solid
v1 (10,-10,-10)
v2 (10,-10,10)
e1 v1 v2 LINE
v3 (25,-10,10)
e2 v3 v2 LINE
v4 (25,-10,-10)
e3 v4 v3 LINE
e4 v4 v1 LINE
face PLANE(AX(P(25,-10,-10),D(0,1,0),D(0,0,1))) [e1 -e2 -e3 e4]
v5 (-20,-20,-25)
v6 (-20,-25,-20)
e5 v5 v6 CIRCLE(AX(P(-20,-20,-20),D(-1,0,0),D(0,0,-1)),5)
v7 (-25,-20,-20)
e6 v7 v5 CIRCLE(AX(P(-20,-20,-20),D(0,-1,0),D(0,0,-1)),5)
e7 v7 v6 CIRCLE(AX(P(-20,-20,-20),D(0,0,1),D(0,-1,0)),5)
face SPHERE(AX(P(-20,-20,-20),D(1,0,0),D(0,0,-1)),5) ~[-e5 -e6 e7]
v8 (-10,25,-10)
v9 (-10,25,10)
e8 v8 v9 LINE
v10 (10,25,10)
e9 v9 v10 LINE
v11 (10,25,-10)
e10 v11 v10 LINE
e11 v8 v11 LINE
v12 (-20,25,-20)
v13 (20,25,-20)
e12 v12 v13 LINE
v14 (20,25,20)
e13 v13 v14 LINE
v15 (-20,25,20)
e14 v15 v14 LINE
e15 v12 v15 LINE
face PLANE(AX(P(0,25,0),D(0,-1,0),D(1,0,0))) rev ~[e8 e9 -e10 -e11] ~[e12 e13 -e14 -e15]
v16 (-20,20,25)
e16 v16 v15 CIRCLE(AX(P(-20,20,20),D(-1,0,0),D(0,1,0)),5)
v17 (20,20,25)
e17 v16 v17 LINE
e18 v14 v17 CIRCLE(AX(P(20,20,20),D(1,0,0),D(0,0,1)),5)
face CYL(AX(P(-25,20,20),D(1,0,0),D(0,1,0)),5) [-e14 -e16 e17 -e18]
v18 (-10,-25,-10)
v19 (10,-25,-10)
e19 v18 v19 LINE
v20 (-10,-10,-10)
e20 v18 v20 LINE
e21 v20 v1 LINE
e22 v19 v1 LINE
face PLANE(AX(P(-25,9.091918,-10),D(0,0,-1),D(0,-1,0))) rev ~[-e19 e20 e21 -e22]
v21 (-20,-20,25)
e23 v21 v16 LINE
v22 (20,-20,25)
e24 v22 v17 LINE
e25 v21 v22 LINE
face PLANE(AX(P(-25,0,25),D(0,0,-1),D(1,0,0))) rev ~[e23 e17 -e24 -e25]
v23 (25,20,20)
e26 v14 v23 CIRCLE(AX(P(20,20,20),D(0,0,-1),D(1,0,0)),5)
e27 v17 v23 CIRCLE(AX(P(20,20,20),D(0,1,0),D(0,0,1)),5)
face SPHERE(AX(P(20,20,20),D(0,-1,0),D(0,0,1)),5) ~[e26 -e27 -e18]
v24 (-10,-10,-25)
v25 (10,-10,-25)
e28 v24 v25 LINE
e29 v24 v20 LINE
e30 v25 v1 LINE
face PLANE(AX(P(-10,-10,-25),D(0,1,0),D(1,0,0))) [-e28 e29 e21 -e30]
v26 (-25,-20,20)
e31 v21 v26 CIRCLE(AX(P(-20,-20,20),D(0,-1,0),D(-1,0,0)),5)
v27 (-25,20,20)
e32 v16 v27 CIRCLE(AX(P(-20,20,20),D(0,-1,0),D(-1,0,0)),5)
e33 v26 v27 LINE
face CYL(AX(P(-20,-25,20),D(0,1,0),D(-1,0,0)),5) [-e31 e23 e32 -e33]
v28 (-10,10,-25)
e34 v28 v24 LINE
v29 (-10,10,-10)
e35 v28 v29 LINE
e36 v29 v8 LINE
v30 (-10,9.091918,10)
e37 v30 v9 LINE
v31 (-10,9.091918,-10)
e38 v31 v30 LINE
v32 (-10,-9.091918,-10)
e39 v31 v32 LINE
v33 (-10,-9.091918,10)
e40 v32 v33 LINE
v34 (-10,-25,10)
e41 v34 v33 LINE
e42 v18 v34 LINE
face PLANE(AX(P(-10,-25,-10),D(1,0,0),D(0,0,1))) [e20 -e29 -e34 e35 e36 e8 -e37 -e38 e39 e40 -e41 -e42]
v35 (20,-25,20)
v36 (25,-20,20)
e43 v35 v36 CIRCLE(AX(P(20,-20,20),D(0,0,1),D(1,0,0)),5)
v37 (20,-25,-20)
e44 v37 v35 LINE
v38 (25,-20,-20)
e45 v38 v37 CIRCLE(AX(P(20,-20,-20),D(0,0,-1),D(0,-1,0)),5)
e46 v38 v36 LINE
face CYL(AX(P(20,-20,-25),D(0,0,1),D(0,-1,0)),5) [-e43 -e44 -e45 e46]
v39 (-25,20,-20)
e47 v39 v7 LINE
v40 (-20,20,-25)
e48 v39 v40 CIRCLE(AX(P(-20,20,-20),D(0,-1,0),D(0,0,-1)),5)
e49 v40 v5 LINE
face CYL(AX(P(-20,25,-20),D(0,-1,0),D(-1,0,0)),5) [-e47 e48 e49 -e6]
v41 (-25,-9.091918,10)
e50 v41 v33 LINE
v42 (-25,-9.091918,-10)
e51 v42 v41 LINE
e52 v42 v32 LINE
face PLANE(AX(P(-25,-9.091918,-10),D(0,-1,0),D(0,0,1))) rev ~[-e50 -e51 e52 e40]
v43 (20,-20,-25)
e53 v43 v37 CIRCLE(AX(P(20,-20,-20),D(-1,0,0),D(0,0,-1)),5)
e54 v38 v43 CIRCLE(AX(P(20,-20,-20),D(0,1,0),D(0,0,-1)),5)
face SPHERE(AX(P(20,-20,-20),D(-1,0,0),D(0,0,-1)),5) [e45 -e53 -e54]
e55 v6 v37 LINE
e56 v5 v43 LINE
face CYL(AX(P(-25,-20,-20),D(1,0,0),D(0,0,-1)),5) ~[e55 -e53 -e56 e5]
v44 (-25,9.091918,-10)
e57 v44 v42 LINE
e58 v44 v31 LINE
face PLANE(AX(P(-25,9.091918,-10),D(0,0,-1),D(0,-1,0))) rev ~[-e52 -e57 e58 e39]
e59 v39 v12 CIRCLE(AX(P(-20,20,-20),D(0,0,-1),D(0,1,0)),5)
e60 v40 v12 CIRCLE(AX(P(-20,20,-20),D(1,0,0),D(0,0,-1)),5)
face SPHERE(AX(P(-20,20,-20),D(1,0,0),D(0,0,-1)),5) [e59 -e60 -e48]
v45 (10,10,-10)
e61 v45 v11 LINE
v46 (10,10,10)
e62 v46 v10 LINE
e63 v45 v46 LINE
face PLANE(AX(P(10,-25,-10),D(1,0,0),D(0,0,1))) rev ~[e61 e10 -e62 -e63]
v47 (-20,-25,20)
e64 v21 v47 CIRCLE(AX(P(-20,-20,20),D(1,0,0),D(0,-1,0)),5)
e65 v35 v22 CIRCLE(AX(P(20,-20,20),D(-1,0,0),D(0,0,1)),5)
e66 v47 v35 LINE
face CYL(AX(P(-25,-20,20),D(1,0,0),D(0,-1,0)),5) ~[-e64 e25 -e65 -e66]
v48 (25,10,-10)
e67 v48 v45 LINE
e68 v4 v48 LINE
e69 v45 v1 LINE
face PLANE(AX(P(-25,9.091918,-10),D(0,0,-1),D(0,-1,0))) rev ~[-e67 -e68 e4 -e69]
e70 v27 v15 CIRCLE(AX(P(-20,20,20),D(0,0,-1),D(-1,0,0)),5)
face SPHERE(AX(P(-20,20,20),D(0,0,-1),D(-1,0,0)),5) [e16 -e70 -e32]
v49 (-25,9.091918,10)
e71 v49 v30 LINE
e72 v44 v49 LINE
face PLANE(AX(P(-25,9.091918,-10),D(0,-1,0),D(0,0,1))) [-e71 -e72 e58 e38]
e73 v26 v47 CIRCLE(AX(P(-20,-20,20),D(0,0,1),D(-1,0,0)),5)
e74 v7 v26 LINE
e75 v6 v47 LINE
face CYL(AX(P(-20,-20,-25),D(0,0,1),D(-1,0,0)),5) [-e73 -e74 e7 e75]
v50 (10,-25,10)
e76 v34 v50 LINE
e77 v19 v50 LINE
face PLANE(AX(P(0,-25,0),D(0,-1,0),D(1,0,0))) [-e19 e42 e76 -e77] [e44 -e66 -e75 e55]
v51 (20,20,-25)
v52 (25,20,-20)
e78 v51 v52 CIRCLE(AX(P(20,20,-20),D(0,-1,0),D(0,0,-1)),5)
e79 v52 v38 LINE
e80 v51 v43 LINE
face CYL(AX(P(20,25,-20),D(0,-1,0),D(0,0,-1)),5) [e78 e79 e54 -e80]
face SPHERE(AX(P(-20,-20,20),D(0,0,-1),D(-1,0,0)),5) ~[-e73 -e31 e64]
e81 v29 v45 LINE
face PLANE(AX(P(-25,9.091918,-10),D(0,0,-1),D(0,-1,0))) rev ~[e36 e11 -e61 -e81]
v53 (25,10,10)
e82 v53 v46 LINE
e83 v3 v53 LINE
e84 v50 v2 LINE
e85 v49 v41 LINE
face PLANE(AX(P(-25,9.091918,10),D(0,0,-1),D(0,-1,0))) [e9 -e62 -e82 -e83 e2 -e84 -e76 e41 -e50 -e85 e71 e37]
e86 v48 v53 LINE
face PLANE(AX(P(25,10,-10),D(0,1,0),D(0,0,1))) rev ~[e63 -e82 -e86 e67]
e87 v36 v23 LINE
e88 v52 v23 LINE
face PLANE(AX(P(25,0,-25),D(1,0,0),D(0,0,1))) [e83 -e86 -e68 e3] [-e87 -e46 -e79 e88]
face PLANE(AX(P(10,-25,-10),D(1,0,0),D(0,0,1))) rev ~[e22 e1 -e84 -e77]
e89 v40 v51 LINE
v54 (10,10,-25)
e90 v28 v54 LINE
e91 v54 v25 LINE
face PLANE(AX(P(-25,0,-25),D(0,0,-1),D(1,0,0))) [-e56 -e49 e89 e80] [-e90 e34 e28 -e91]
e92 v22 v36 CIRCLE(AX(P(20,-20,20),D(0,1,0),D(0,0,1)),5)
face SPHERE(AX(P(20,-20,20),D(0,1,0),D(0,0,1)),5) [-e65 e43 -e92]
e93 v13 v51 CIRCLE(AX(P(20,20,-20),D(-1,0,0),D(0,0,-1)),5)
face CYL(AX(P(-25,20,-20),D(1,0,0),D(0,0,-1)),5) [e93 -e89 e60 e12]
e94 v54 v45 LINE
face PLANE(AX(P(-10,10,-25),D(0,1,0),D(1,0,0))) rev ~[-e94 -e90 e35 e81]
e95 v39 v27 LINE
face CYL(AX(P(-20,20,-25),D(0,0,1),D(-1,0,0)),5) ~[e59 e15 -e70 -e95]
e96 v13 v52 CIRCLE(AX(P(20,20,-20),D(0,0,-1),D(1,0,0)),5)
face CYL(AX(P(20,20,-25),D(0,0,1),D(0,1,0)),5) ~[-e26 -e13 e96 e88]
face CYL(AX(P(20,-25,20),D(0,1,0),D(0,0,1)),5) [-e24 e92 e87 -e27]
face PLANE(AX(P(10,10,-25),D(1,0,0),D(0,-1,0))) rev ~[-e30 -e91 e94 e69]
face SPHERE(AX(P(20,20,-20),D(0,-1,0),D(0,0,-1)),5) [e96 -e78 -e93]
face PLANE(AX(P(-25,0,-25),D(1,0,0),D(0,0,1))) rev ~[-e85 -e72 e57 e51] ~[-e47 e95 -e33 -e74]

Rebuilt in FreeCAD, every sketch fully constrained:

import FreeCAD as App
import Part
import Sketcher
from FreeCAD import Vector


def edges_at(feature, points):
    """Names of the edges that pass closest to the given points."""
    edges = feature.Shape.Edges
    near = lambda p: min(range(len(edges)), key=lambda i: edges[i].distToShape(Part.Vertex(*p))[0])
    return sorted({f"Edge{near(p) + 1}" for p in points})

doc = App.newDocument("Part")
params = doc.addObject("Spreadsheet::Sheet", "Params")
for row, (alias, value) in enumerate([
    ("sketch1_width", "50 mm"),
    ("pad1_length", "50 mm"),
    ("sketch2_width", "20 mm"),
    ("sketch3_width", "20 mm"),
    ("pocket2_length", "15 mm"),
    ("sketch4_height", "20 mm"),
    ("fillet_radius", "5 mm"),
    ("sketch5_width", "20 mm"),
    ("pocket4_length", "15 mm"),
], start=1):
    params.set(f"A{row}", alias)
    params.set(f"B{row}", "=" + value)
    params.setAlias(f"B{row}", alias)

body = doc.addObject("PartDesign::Body", "Body")

sketch1 = body.newObject("Sketcher::SketchObject", "Sketch")
sketch1.AttachmentSupport = (doc.getObject("XZ_Plane"), [""])
sketch1.MapMode = "FlatFace"
sketch1.addGeometry([
    Part.LineSegment(Vector(-25, 25, 0), Vector(-25, -25, 0)),
    Part.LineSegment(Vector(-25, -25, 0), Vector(25, -25, 0)),
    Part.LineSegment(Vector(25, -25, 0), Vector(25, 25, 0)),
    Part.LineSegment(Vector(25, 25, 0), Vector(-25, 25, 0)),
], False)
sketch1.addConstraint([
    Sketcher.Constraint("Coincident", 0, 2, 1, 1),
    Sketcher.Constraint("Coincident", 1, 2, 2, 1),
    Sketcher.Constraint("Coincident", 2, 2, 3, 1),
    Sketcher.Constraint("Coincident", 3, 2, 0, 1),
    Sketcher.Constraint("Vertical", 0),
    Sketcher.Constraint("Horizontal", 1),
    Sketcher.Constraint("Vertical", 2),
    Sketcher.Constraint("Horizontal", 3),
    Sketcher.Constraint("Symmetric", 0, 2, 2, 2, -1, 1),
    Sketcher.Constraint("Equal", 3, 0),
    Sketcher.Constraint("DistanceX", 1, 1, 1, 2, 50.0),
])
sketch1.setExpression("Constraints[10]", "Params.sketch1_width")
pad1 = body.newObject("PartDesign::Pad", "Pad")
pad1.Profile = sketch1
pad1.setExpression("Length", "Params.pad1_length")
pad1.Midplane = True

sketch2 = body.newObject("Sketcher::SketchObject", "Sketch001")
sketch2.AttachmentSupport = (doc.getObject("XZ_Plane"), [""])
sketch2.MapMode = "FlatFace"
sketch2.AttachmentOffset = App.Placement(Vector(0, 0, 25), App.Rotation())
sketch2.addGeometry([
    Part.LineSegment(Vector(-10, 10, 0), Vector(-10, -10, 0)),
    Part.LineSegment(Vector(-10, -10, 0), Vector(10, -10, 0)),
    Part.LineSegment(Vector(10, -10, 0), Vector(10, 10, 0)),
    Part.LineSegment(Vector(10, 10, 0), Vector(-10, 10, 0)),
], False)
sketch2.addConstraint([
    Sketcher.Constraint("Coincident", 0, 2, 1, 1),
    Sketcher.Constraint("Coincident", 1, 2, 2, 1),
    Sketcher.Constraint("Coincident", 2, 2, 3, 1),
    Sketcher.Constraint("Coincident", 3, 2, 0, 1),
    Sketcher.Constraint("Vertical", 0),
    Sketcher.Constraint("Horizontal", 1),
    Sketcher.Constraint("Vertical", 2),
    Sketcher.Constraint("Horizontal", 3),
    Sketcher.Constraint("Symmetric", 0, 2, 2, 2, -1, 1),
    Sketcher.Constraint("Equal", 3, 0),
    Sketcher.Constraint("DistanceX", 1, 1, 1, 2, 20.0),
])
sketch2.setExpression("Constraints[10]", "Params.sketch2_width")
pocket1 = body.newObject("PartDesign::Pocket", "Pocket")
pocket1.Profile = sketch2
pocket1.Type = "ThroughAll"

sketch3 = body.newObject("Sketcher::SketchObject", "Sketch002")
sketch3.AttachmentSupport = (doc.getObject("YZ_Plane"), [""])
sketch3.MapMode = "FlatFace"
sketch3.AttachmentOffset = App.Placement(Vector(0, 0, 25), App.Rotation())
sketch3.addGeometry([
    Part.LineSegment(Vector(-10, 10, 0), Vector(-10, -10, 0)),
    Part.LineSegment(Vector(-10, -10, 0), Vector(10, -10, 0)),
    Part.LineSegment(Vector(10, -10, 0), Vector(10, 10, 0)),
    Part.LineSegment(Vector(10, 10, 0), Vector(-10, 10, 0)),
], False)
sketch3.addConstraint([
    Sketcher.Constraint("Coincident", 0, 2, 1, 1),
    Sketcher.Constraint("Coincident", 1, 2, 2, 1),
    Sketcher.Constraint("Coincident", 2, 2, 3, 1),
    Sketcher.Constraint("Coincident", 3, 2, 0, 1),
    Sketcher.Constraint("Vertical", 0),
    Sketcher.Constraint("Horizontal", 1),
    Sketcher.Constraint("Vertical", 2),
    Sketcher.Constraint("Horizontal", 3),
    Sketcher.Constraint("Symmetric", 0, 2, 2, 2, -1, 1),
    Sketcher.Constraint("Equal", 3, 0),
    Sketcher.Constraint("DistanceX", 1, 1, 1, 2, 20.0),
])
sketch3.setExpression("Constraints[10]", "Params.sketch3_width")
pocket2 = body.newObject("PartDesign::Pocket", "Pocket001")
pocket2.Profile = sketch3
pocket2.setExpression("Length", "Params.pocket2_length")

sketch4 = body.newObject("Sketcher::SketchObject", "Sketch003")
sketch4.AttachmentSupport = (doc.getObject("YZ_Plane"), [""])
sketch4.MapMode = "FlatFace"
sketch4.AttachmentOffset = App.Placement(Vector(0, 0, -25), App.Rotation())
sketch4.addGeometry([
    Part.LineSegment(Vector(9, 10, 0), Vector(9, -10, 0)),
    Part.LineSegment(Vector(9, -10, 0), Vector(-9, -10, 0)),
    Part.LineSegment(Vector(-9, -10, 0), Vector(-9, 10, 0)),
    Part.LineSegment(Vector(-9, 10, 0), Vector(9, 10, 0)),
], False)
sketch4.addConstraint([
    Sketcher.Constraint("Coincident", 0, 2, 1, 1),
    Sketcher.Constraint("Coincident", 1, 2, 2, 1),
    Sketcher.Constraint("Coincident", 2, 2, 3, 1),
    Sketcher.Constraint("Coincident", 3, 2, 0, 1),
    Sketcher.Constraint("Vertical", 0),
    Sketcher.Constraint("Horizontal", 1),
    Sketcher.Constraint("Vertical", 2),
    Sketcher.Constraint("Horizontal", 3),
    Sketcher.Constraint("Symmetric", 0, 2, 2, 2, -1, 1),
    Sketcher.Constraint("DistanceY", 0, 2, 0, 1, 20.0),
    Sketcher.Constraint("DistanceX", 1, 2, 1, 1, 18.183837),
])
sketch4.setExpression("Constraints[9]", "Params.sketch4_height")
pocket3 = body.newObject("PartDesign::Pocket", "Pocket002")
pocket3.Profile = sketch4
pocket3.Type = "ThroughAll"
pocket3.Reversed = True
doc.recompute()

fillet = body.newObject("PartDesign::Fillet", "Fillet")
fillet.Base = (pocket3, edges_at(pocket3, [
    (0, -25, -25),
    (25, 0, -25),
    (0, 25, -25),
    (-25, 0, -25),
    (-25, -25, 0),
    (-25, 25, 0),
    (-25, 0, 25),
    (25, 0, 25),
    (0, 25, 25),
    (0, -25, 25),
    (25, -25, 0),
    (25, 25, 0),
]))
fillet.setExpression("Radius", "Params.fillet_radius")

sketch5 = body.newObject("Sketcher::SketchObject", "Sketch004")
sketch5.AttachmentSupport = (doc.getObject("XY_Plane"), [""])
sketch5.MapMode = "FlatFace"
sketch5.AttachmentOffset = App.Placement(Vector(0, 0, -25), App.Rotation())
sketch5.addGeometry([
    Part.LineSegment(Vector(-10, -10, 0), Vector(-10, 10, 0)),
    Part.LineSegment(Vector(-10, 10, 0), Vector(10, 10, 0)),
    Part.LineSegment(Vector(10, 10, 0), Vector(10, -10, 0)),
    Part.LineSegment(Vector(10, -10, 0), Vector(-10, -10, 0)),
], False)
sketch5.addConstraint([
    Sketcher.Constraint("Coincident", 0, 2, 1, 1),
    Sketcher.Constraint("Coincident", 1, 2, 2, 1),
    Sketcher.Constraint("Coincident", 2, 2, 3, 1),
    Sketcher.Constraint("Coincident", 3, 2, 0, 1),
    Sketcher.Constraint("Vertical", 0),
    Sketcher.Constraint("Horizontal", 1),
    Sketcher.Constraint("Vertical", 2),
    Sketcher.Constraint("Horizontal", 3),
    Sketcher.Constraint("Symmetric", 0, 2, 2, 2, -1, 1),
    Sketcher.Constraint("Equal", 3, 0),
    Sketcher.Constraint("DistanceX", 1, 1, 1, 2, 20.0),
])
sketch5.setExpression("Constraints[10]", "Params.sketch5_width")
pocket4 = body.newObject("PartDesign::Pocket", "Pocket003")
pocket4.Profile = sketch5
pocket4.setExpression("Length", "Params.pocket4_length")
pocket4.Reversed = True

doc.recompute()
